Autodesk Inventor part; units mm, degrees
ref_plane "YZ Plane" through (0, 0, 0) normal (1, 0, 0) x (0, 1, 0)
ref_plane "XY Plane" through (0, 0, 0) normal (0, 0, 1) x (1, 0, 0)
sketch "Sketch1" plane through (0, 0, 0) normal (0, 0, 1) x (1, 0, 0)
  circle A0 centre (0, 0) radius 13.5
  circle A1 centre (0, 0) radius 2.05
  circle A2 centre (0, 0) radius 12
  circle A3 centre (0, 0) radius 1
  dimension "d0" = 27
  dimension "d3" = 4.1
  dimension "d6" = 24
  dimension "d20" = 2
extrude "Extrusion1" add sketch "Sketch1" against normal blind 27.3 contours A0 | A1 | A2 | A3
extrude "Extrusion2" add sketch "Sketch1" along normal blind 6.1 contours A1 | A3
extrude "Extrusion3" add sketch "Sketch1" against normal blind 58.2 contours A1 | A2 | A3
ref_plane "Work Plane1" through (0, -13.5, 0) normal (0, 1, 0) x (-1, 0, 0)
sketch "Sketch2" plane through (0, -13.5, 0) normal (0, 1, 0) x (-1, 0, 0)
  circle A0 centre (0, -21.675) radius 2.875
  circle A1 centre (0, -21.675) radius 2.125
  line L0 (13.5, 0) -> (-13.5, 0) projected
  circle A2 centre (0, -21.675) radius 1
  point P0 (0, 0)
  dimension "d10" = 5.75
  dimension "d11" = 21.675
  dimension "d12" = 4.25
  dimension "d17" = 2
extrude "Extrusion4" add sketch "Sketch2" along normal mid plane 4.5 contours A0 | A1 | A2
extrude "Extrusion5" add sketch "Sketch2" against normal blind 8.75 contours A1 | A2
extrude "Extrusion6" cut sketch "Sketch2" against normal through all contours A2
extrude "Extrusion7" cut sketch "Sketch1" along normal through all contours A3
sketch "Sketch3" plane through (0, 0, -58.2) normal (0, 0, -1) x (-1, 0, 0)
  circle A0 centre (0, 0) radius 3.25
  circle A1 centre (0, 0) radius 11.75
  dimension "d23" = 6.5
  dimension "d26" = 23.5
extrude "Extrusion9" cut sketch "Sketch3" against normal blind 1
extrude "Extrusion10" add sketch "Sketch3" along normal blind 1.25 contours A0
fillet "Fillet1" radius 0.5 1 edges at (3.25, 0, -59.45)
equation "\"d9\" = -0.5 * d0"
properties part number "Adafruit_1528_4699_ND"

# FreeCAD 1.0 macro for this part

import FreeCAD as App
import Part
import Sketcher
Q = App.Units.Quantity


def edges_at(feature, points):
    """Names of the edges that pass closest to the given points."""
    edges = feature.Shape.Edges
    near = lambda p: min(range(len(edges)), key=lambda i: edges[i].distToShape(Part.Vertex(*p))[0])
    return sorted({f"Edge{near(p) + 1}" for p in points})

doc = App.newDocument("Part")
body = doc.addObject("PartDesign::Body", "Body")

sketch1 = body.newObject("Sketcher::SketchObject", "Sketch")
sketch1.AttachmentSupport = (doc.getObject("XY_Plane"), [""])
sketch1.MapMode = "FlatFace"
sketch1.addGeometry(Part.Circle(App.Vector(0, 0, 0), App.Vector(0, 0, 1), 14), False)
sketch1.addConstraint(Sketcher.Constraint("Coincident", 0, 3, -1, 1))
sketch1.addConstraint(Sketcher.Constraint("Diameter", 0, Q("27 mm")))
pad1 = body.newObject("PartDesign::Pad", "Pad")
pad1.Profile = sketch1
pad1.Length = 27.3
pad1.Reversed = True

sketch2 = body.newObject("Sketcher::SketchObject", "Sketch001")
sketch2.AttachmentSupport = (doc.getObject("XY_Plane"), [""])
sketch2.MapMode = "FlatFace"
sketch2.addGeometry(Part.Circle(App.Vector(0, 0, 0), App.Vector(0, 0, 1), 2), False)
sketch2.addConstraint(Sketcher.Constraint("Coincident", 0, 3, -1, 1))
sketch2.addConstraint(Sketcher.Constraint("Diameter", 0, Q("4.1 mm")))
pad2 = body.newObject("PartDesign::Pad", "Pad001")
pad2.Profile = sketch2
pad2.Length = 6.1

sketch3 = body.newObject("Sketcher::SketchObject", "Sketch002")
sketch3.AttachmentSupport = (doc.getObject("XY_Plane"), [""])
sketch3.MapMode = "FlatFace"
sketch3.addGeometry(Part.Circle(App.Vector(0, 0, 0), App.Vector(0, 0, 1), 12), False)
sketch3.addConstraint(Sketcher.Constraint("Coincident", 0, 3, -1, 1))
sketch3.addConstraint(Sketcher.Constraint("Diameter", 0, Q("24 mm")))
pad3 = body.newObject("PartDesign::Pad", "Pad002")
pad3.Profile = sketch3
pad3.Length = 58.2
pad3.Reversed = True

sketch4 = body.newObject("Sketcher::SketchObject", "Sketch003")
sketch4.AttachmentSupport = (doc.getObject("XZ_Plane"), [""])
sketch4.MapMode = "FlatFace"
sketch4.AttachmentOffset = App.Placement(App.Vector(0, 0, 13.5), App.Rotation())
sketch4.addGeometry(Part.Circle(App.Vector(0, -21.7, 0), App.Vector(0, 0, 1), 2.9), False)
sketch4.addConstraint(Sketcher.Constraint("PointOnObject", 0, 3, -2))
sketch4.addConstraint(Sketcher.Constraint("Diameter", 0, Q("5.75 mm")))
sketch4.addConstraint(Sketcher.Constraint("DistanceY", 0, 3, -1, 1, Q("21.675 mm")))
pad4 = body.newObject("PartDesign::Pad", "Pad003")
pad4.Profile = sketch4
pad4.Length = 4.5
pad4.Midplane = True

sketch5 = body.newObject("Sketcher::SketchObject", "Sketch004")
sketch5.AttachmentSupport = (doc.getObject("XZ_Plane"), [""])
sketch5.MapMode = "FlatFace"
sketch5.AttachmentOffset = App.Placement(App.Vector(0, 0, 13.5), App.Rotation())
sketch5.addGeometry(Part.Circle(App.Vector(0, -21.7, 0), App.Vector(0, 0, 1), 2.1), False)
sketch5.addConstraint(Sketcher.Constraint("PointOnObject", 0, 3, -2))
sketch5.addConstraint(Sketcher.Constraint("Diameter", 0, Q("4.25 mm")))
sketch5.addConstraint(Sketcher.Constraint("DistanceY", 0, 3, -1, 1, Q("21.675 mm")))
pad5 = body.newObject("PartDesign::Pad", "Pad004")
pad5.Profile = sketch5
pad5.Length = 8.75

sketch6 = body.newObject("Sketcher::SketchObject", "Sketch005")
sketch6.AttachmentSupport = (doc.getObject("XZ_Plane"), [""])
sketch6.MapMode = "FlatFace"
sketch6.AttachmentOffset = App.Placement(App.Vector(0, 0, 13.5), App.Rotation())
sketch6.addGeometry(Part.Circle(App.Vector(0, -21.7, 0), App.Vector(0, 0, 1), 1), False)
sketch6.addConstraint(Sketcher.Constraint("PointOnObject", 0, 3, -2))
sketch6.addConstraint(Sketcher.Constraint("Diameter", 0, Q("2 mm")))
sketch6.addConstraint(Sketcher.Constraint("DistanceY", 0, 3, -1, 1, Q("21.675 mm")))
pocket1 = body.newObject("PartDesign::Pocket", "Pocket")
pocket1.Profile = sketch6
pocket1.Type = "ThroughAll"
pocket1.Reversed = True

sketch7 = body.newObject("Sketcher::SketchObject", "Sketch006")
sketch7.AttachmentSupport = (doc.getObject("XY_Plane"), [""])
sketch7.MapMode = "FlatFace"
sketch7.addGeometry(Part.Circle(App.Vector(0, 0, 0), App.Vector(0, 0, 1), 1), False)
sketch7.addConstraint(Sketcher.Constraint("Coincident", 0, 3, -1, 1))
sketch7.addConstraint(Sketcher.Constraint("Diameter", 0, Q("2 mm")))
pocket2 = body.newObject("PartDesign::Pocket", "Pocket001")
pocket2.Profile = sketch7
pocket2.Type = "ThroughAll"
pocket2.Reversed = True

sketch8 = body.newObject("Sketcher::SketchObject", "Sketch007")
sketch8.AttachmentSupport = (doc.getObject("XY_Plane"), [""])
sketch8.MapMode = "FlatFace"
sketch8.AttachmentOffset = App.Placement(App.Vector(0, 0, -58.2), App.Rotation())
sketch8.addGeometry(Part.Circle(App.Vector(0, 0, 0), App.Vector(0, 0, 1), 11.8), False)
sketch8.addGeometry(Part.Circle(App.Vector(0, 0, 0), App.Vector(0, 0, 1), 3.2), False)
sketch8.addConstraint(Sketcher.Constraint("Coincident", 0, 3, -1, 1))
sketch8.addConstraint(Sketcher.Constraint("Coincident", 1, 3, -1, 1))
sketch8.addConstraint(Sketcher.Constraint("Diameter", 0, Q("23.5 mm")))
sketch8.addConstraint(Sketcher.Constraint("Diameter", 1, Q("6.5 mm")))
pocket3 = body.newObject("PartDesign::Pocket", "Pocket002")
pocket3.Profile = sketch8
pocket3.Length = 1
pocket3.Reversed = True

sketch9 = body.newObject("Sketcher::SketchObject", "Sketch008")
sketch9.AttachmentSupport = (doc.getObject("XY_Plane"), [""])
sketch9.MapMode = "FlatFace"
sketch9.AttachmentOffset = App.Placement(App.Vector(0, 0, -58.2), App.Rotation())
sketch9.addGeometry(Part.Circle(App.Vector(0, 0, 0), App.Vector(0, 0, 1), 3.2), False)
sketch9.addConstraint(Sketcher.Constraint("Coincident", 0, 3, -1, 1))
sketch9.addConstraint(Sketcher.Constraint("Diameter", 0, Q("6.5 mm")))
pad6 = body.newObject("PartDesign::Pad", "Pad005")
pad6.Profile = sketch9
pad6.Length = 1.25
pad6.Reversed = True
doc.recompute()

fillet = body.newObject("PartDesign::Fillet", "Fillet")
fillet.Base = (pad6, edges_at(pad6, [(3.25, 0, -59.45)]))
fillet.Radius = 0.5

doc.recompute()
